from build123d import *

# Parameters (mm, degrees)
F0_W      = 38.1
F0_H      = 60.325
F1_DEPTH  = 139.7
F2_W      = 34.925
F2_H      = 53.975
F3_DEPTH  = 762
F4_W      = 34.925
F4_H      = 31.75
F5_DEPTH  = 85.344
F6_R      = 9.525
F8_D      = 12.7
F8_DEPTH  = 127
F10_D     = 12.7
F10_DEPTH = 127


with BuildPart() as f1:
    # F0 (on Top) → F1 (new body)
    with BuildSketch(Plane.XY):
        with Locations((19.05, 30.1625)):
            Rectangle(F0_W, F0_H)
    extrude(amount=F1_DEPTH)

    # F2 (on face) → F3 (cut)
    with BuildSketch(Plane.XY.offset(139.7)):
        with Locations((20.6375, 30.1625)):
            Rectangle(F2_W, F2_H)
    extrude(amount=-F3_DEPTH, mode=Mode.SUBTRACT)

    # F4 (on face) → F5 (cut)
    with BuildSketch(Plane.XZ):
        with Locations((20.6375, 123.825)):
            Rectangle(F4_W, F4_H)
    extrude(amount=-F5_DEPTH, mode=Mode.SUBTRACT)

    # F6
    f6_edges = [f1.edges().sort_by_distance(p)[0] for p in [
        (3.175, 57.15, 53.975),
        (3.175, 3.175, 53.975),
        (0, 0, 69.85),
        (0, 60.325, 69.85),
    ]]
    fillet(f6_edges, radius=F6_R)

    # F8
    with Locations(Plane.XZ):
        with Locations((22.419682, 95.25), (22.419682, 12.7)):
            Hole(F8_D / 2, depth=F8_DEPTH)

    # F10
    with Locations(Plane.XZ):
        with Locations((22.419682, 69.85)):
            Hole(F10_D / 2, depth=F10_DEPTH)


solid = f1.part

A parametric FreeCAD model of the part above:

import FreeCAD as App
import Part
import Sketcher
Q = App.Units.Quantity


def edges_at(feature, points):
    """Names of the edges that pass closest to the given points."""
    edges = feature.Shape.Edges
    near = lambda p: min(range(len(edges)), key=lambda i: edges[i].distToShape(Part.Vertex(*p))[0])
    return sorted({f"Edge{near(p) + 1}" for p in points})

doc = App.newDocument("Part")
body = doc.addObject("PartDesign::Body", "Body")

sketch1 = body.newObject("Sketcher::SketchObject", "Sketch")
sketch1.AttachmentSupport = (doc.getObject("XY_Plane"), [""])
sketch1.MapMode = "FlatFace"
sketch1.addGeometry(Part.LineSegment(App.Vector(0, 60.325, 0), App.Vector(0, 0, 0)), False)
sketch1.addGeometry(Part.LineSegment(App.Vector(0, 0, 0), App.Vector(38.1, 0, 0)), False)
sketch1.addGeometry(Part.LineSegment(App.Vector(38.1, 0, 0), App.Vector(38.1, 60.325, 0)), False)
sketch1.addGeometry(Part.LineSegment(App.Vector(38.1, 60.325, 0), App.Vector(0, 60.325, 0)), False)
sketch1.addConstraint(Sketcher.Constraint("Coincident", 0, 2, 1, 1))
sketch1.addConstraint(Sketcher.Constraint("Coincident", 1, 2, 2, 1))
sketch1.addConstraint(Sketcher.Constraint("Coincident", 2, 2, 3, 1))
sketch1.addConstraint(Sketcher.Constraint("Coincident", 3, 2, 0, 1))
sketch1.addConstraint(Sketcher.Constraint("Vertical", 0))
sketch1.addConstraint(Sketcher.Constraint("Horizontal", 1))
sketch1.addConstraint(Sketcher.Constraint("Vertical", 2))
sketch1.addConstraint(Sketcher.Constraint("Horizontal", 3))
sketch1.addConstraint(Sketcher.Constraint("Coincident", 0, 2, -1, 1))
sketch1.addConstraint(Sketcher.Constraint("DistanceX", 1, 1, 1, 2, Q("1.5 in")))
sketch1.addConstraint(Sketcher.Constraint("DistanceY", 0, 2, 0, 1, Q("2.375 in")))
pad1 = body.newObject("PartDesign::Pad", "Pad")
pad1.Profile = sketch1
pad1.Length = Q("5.5 in")

sketch2 = body.newObject("Sketcher::SketchObject", "Sketch001")
sketch2.AttachmentSupport = (doc.getObject("XY_Plane"), [""])
sketch2.MapMode = "FlatFace"
sketch2.AttachmentOffset = App.Placement(App.Vector(0, 0, 5.5 * 25.4), App.Rotation())
sketch2.addGeometry(Part.LineSegment(App.Vector(3.175, 57.15, 0), App.Vector(3.175, 3.175, 0)), False)
sketch2.addGeometry(Part.LineSegment(App.Vector(3.175, 3.175, 0), App.Vector(38.1, 3.175, 0)), False)
sketch2.addGeometry(Part.LineSegment(App.Vector(38.1, 3.175, 0), App.Vector(38.1, 57.15, 0)), False)
sketch2.addGeometry(Part.LineSegment(App.Vector(38.1, 57.15, 0), App.Vector(3.175, 57.15, 0)), False)
sketch2.addConstraint(Sketcher.Constraint("Coincident", 0, 2, 1, 1))
sketch2.addConstraint(Sketcher.Constraint("Coincident", 1, 2, 2, 1))
sketch2.addConstraint(Sketcher.Constraint("Coincident", 2, 2, 3, 1))
sketch2.addConstraint(Sketcher.Constraint("Coincident", 3, 2, 0, 1))
sketch2.addConstraint(Sketcher.Constraint("Vertical", 0))
sketch2.addConstraint(Sketcher.Constraint("Horizontal", 1))
sketch2.addConstraint(Sketcher.Constraint("Vertical", 2))
sketch2.addConstraint(Sketcher.Constraint("Horizontal", 3))
sketch2.addConstraint(Sketcher.Constraint("DistanceX", -1, 1, 1, 2, Q("1.5 in")))
sketch2.addConstraint(Sketcher.Constraint("DistanceX", 1, 1, 1, 2, Q("1.375 in")))
sketch2.addConstraint(Sketcher.Constraint("DistanceY", 0, 2, 0, 1, Q("2.125 in")))
sketch2.addConstraint(Sketcher.Constraint("DistanceY", -1, 1, 2, 2, Q("2.25 in")))
pocket1 = body.newObject("PartDesign::Pocket", "Pocket")
pocket1.Profile = sketch2
pocket1.Length = Q("30 in")

sketch3 = body.newObject("Sketcher::SketchObject", "Sketch002")
sketch3.AttachmentSupport = (doc.getObject("XZ_Plane"), [""])
sketch3.MapMode = "FlatFace"
sketch3.addGeometry(Part.LineSegment(App.Vector(3.175, 139.7, 0), App.Vector(3.175, 107.95, 0)), False)
sketch3.addGeometry(Part.LineSegment(App.Vector(3.175, 107.95, 0), App.Vector(38.1, 107.95, 0)), False)
sketch3.addGeometry(Part.LineSegment(App.Vector(38.1, 107.95, 0), App.Vector(38.1, 139.7, 0)), False)
sketch3.addGeometry(Part.LineSegment(App.Vector(38.1, 139.7, 0), App.Vector(3.175, 139.7, 0)), False)
sketch3.addConstraint(Sketcher.Constraint("Coincident", 0, 2, 1, 1))
sketch3.addConstraint(Sketcher.Constraint("Coincident", 1, 2, 2, 1))
sketch3.addConstraint(Sketcher.Constraint("Coincident", 2, 2, 3, 1))
sketch3.addConstraint(Sketcher.Constraint("Coincident", 3, 2, 0, 1))
sketch3.addConstraint(Sketcher.Constraint("Vertical", 0))
sketch3.addConstraint(Sketcher.Constraint("Horizontal", 1))
sketch3.addConstraint(Sketcher.Constraint("Vertical", 2))
sketch3.addConstraint(Sketcher.Constraint("Horizontal", 3))
sketch3.addConstraint(Sketcher.Constraint("DistanceY", 0, 2, 0, 1, Q("1.25 in")))
sketch3.addConstraint(Sketcher.Constraint("DistanceX", -1, 1, 1, 2, Q("1.5 in")))
sketch3.addConstraint(Sketcher.Constraint("DistanceY", -1, 1, 2, 2, Q("5.5 in")))
sketch3.addConstraint(Sketcher.Constraint("DistanceX", 1, 1, 1, 2, Q("1.375 in")))
pocket2 = body.newObject("PartDesign::Pocket", "Pocket001")
pocket2.Profile = sketch3
pocket2.Length = Q("3.36 in")
doc.recompute()

fillet = body.newObject("PartDesign::Fillet", "Fillet")
fillet.Base = (pocket2, edges_at(pocket2, [
    (3.175, 57.15, 53.975),
    (3.175, 3.175, 53.975),
    (0, 0, 69.85),
    (0, 60.325, 69.85),
]))
fillet.Radius = Q("0.375 in")

sketch4 = body.newObject("Sketcher::SketchObject", "Sketch003")
sketch4.AttachmentSupport = (doc.getObject("XZ_Plane"), [""])
sketch4.MapMode = "FlatFace"
sketch4.addGeometry(Part.Circle(App.Vector(22.419682, 95.25, 0), App.Vector(0, 0, 1), 6.35), False)
sketch4.addGeometry(Part.Circle(App.Vector(22.419682, 12.7, 0), App.Vector(0, 0, 1), 6.35), False)
sketch4.addConstraint(Sketcher.Constraint("Equal", 0, 1))
sketch4.addConstraint(Sketcher.Constraint("Vertical", 0, 3, 1, 3))
sketch4.addConstraint(Sketcher.Constraint("Diameter", 0, Q("0.5 in")))
sketch4.addConstraint(Sketcher.Constraint("DistanceY", -1, 1, 1, 3, Q("0.5 in")))
sketch4.addConstraint(Sketcher.Constraint("DistanceY", -1, 1, 0, 3, Q("3.75 in")))
sketch4.addConstraint(Sketcher.Constraint("DistanceX", -1, 1, 0, 3, Q("22.419682 mm")))
doc.recompute()
hole = body.newObject("PartDesign::Hole", "Hole")
hole.Profile = sketch4
hole.ThreadType = "None"
hole.Diameter = Q("0.5 in")
hole.DepthType = "Dimension"
hole.Depth = Q("5 in")
hole.DrillPoint = "Flat"

sketch5 = body.newObject("Sketcher::SketchObject", "Sketch004")
sketch5.AttachmentSupport = (doc.getObject("XZ_Plane"), [""])
sketch5.MapMode = "FlatFace"
sketch5.addGeometry(Part.Circle(App.Vector(22.419682, 69.85, 0), App.Vector(0, 0, 1), 6.35), False)
sketch5.addConstraint(Sketcher.Constraint("Diameter", 0, Q("0.5 in")))
sketch5.addConstraint(Sketcher.Constraint("DistanceY", -1, 1, 0, 3, Q("2.75 in")))
sketch5.addConstraint(Sketcher.Constraint("DistanceX", -1, 1, 0, 3, Q("22.419682 mm")))
doc.recompute()
hole2 = body.newObject("PartDesign::Hole", "Hole001")
hole2.Profile = sketch5
hole2.ThreadType = "None"
hole2.Diameter = Q("0.5 in")
hole2.DepthType = "Dimension"
hole2.Depth = Q("5 in")
hole2.DrillPoint = "Flat"

doc.recompute()
